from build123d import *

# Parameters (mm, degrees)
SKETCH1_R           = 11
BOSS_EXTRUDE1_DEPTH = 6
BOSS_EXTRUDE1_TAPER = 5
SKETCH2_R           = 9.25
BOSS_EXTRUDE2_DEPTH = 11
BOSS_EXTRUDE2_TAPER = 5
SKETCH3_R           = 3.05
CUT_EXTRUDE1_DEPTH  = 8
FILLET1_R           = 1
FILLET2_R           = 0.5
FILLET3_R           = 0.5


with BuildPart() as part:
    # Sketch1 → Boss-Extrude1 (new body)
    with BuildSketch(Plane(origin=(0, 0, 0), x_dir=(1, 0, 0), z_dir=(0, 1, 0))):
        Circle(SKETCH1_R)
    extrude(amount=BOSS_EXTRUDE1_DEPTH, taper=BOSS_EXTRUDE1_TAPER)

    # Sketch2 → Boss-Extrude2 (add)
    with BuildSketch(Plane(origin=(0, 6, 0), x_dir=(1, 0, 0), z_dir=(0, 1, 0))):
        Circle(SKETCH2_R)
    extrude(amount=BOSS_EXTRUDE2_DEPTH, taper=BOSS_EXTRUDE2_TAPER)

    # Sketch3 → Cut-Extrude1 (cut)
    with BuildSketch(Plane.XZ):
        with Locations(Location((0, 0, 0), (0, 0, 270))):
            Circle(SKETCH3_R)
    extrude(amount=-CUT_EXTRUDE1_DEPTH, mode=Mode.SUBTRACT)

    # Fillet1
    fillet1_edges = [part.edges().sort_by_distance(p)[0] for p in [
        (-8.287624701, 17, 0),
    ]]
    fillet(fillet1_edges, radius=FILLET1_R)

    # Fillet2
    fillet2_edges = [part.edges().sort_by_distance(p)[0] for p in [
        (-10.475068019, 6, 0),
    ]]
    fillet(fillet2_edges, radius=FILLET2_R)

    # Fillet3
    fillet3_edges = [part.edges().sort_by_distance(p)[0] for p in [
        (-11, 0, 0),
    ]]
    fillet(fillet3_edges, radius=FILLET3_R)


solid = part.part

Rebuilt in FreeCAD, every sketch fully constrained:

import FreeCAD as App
import Part
import Sketcher
from FreeCAD import Vector


def edges_at(feature, points):
    """Names of the edges that pass closest to the given points."""
    edges = feature.Shape.Edges
    near = lambda p: min(range(len(edges)), key=lambda i: edges[i].distToShape(Part.Vertex(*p))[0])
    return sorted({f"Edge{near(p) + 1}" for p in points})

doc = App.newDocument("Part")
params = doc.addObject("Spreadsheet::Sheet", "Params")
for row, (alias, value) in enumerate([
    ("sketch1_diameter", "22 mm"),
    ("pad1_length", "6 mm"),
    ("pad1_taper", "-5 deg"),
    ("sketch2_diameter", "18.5 mm"),
    ("pad2_length", "11 mm"),
    ("pad2_taper", "-5 deg"),
    ("sketch3_diameter", "6.1 mm"),
    ("pocket1_length", "8 mm"),
    ("fillet_radius", "1 mm"),
    ("fillet2_radius", "0.5 mm"),
    ("fillet3_radius", "0.5 mm"),
], start=1):
    params.set(f"A{row}", alias)
    params.set(f"B{row}", "=" + value)
    params.setAlias(f"B{row}", alias)

body = doc.addObject("PartDesign::Body", "Body")

# Sketch on XZ plane
sketch1 = doc.addObject("Sketcher::SketchObject", "Sketch")
body.addObject(sketch1)
sketch1.AttachmentSupport = (doc.XZ_Plane, [""])
sketch1.MapMode = "FlatFace"
sketch1.addGeometry(Part.Circle(Vector(0, 0, 0), Vector(0, 0, 1), 11), False)
sketch1.addConstraint(Sketcher.Constraint("Coincident", 0, 3, -1, 1))
sketch1.addConstraint(Sketcher.Constraint("Diameter", 0, 22.0))
sketch1.setExpression("Constraints[1]", "Params.sketch1_diameter")
pad1 = doc.addObject("PartDesign::Pad", "Pad")
body.addObject(pad1)
pad1.Profile = sketch1
pad1.setExpression("Length", "Params.pad1_length")
pad1.Reversed = True
pad1.setExpression("TaperAngle", "Params.pad1_taper")

# Sketch on XZ plane
sketch2 = doc.addObject("Sketcher::SketchObject", "Sketch001")
body.addObject(sketch2)
sketch2.AttachmentSupport = (doc.XZ_Plane, [""])
sketch2.MapMode = "FlatFace"
sketch2.AttachmentOffset = App.Placement(Vector(0, 0, -6), App.Rotation())
sketch2.addGeometry(Part.Circle(Vector(0, 0, 0), Vector(0, 0, 1), 9), False)
sketch2.addConstraint(Sketcher.Constraint("Coincident", 0, 3, -1, 1))
sketch2.addConstraint(Sketcher.Constraint("Diameter", 0, 18.5))
sketch2.setExpression("Constraints[1]", "Params.sketch2_diameter")
pad2 = doc.addObject("PartDesign::Pad", "Pad001")
body.addObject(pad2)
pad2.Profile = sketch2
pad2.setExpression("Length", "Params.pad2_length")
pad2.Reversed = True
pad2.setExpression("TaperAngle", "Params.pad2_taper")

# Sketch on XZ plane
sketch3 = doc.addObject("Sketcher::SketchObject", "Sketch002")
body.addObject(sketch3)
sketch3.AttachmentSupport = (doc.XZ_Plane, [""])
sketch3.MapMode = "FlatFace"
sketch3.addGeometry(Part.Circle(Vector(0, 0, 0), Vector(0, 0, 1), 3), False)
sketch3.addConstraint(Sketcher.Constraint("Coincident", 0, 3, -1, 1))
sketch3.addConstraint(Sketcher.Constraint("Diameter", 0, 6.1))
sketch3.setExpression("Constraints[1]", "Params.sketch3_diameter")
pocket1 = doc.addObject("PartDesign::Pocket", "Pocket")
body.addObject(pocket1)
pocket1.Profile = sketch3
pocket1.setExpression("Length", "Params.pocket1_length")
doc.recompute()

fillet = doc.addObject("PartDesign::Fillet", "Fillet")
body.addObject(fillet)
fillet.Base = (pocket1, edges_at(pocket1, [(-8.288, 17, 0)]))
fillet.setExpression("Radius", "Params.fillet_radius")
doc.recompute()

fillet2 = doc.addObject("PartDesign::Fillet", "Fillet001")
body.addObject(fillet2)
fillet2.Base = (fillet, edges_at(fillet, [(-10.475, 6, 0)]))
fillet2.setExpression("Radius", "Params.fillet2_radius")
doc.recompute()

fillet3 = doc.addObject("PartDesign::Fillet", "Fillet002")
body.addObject(fillet3)
fillet3.Base = (fillet2, edges_at(fillet2, [(-11, 0, 0)]))
fillet3.setExpression("Radius", "Params.fillet3_radius")

doc.recompute()
